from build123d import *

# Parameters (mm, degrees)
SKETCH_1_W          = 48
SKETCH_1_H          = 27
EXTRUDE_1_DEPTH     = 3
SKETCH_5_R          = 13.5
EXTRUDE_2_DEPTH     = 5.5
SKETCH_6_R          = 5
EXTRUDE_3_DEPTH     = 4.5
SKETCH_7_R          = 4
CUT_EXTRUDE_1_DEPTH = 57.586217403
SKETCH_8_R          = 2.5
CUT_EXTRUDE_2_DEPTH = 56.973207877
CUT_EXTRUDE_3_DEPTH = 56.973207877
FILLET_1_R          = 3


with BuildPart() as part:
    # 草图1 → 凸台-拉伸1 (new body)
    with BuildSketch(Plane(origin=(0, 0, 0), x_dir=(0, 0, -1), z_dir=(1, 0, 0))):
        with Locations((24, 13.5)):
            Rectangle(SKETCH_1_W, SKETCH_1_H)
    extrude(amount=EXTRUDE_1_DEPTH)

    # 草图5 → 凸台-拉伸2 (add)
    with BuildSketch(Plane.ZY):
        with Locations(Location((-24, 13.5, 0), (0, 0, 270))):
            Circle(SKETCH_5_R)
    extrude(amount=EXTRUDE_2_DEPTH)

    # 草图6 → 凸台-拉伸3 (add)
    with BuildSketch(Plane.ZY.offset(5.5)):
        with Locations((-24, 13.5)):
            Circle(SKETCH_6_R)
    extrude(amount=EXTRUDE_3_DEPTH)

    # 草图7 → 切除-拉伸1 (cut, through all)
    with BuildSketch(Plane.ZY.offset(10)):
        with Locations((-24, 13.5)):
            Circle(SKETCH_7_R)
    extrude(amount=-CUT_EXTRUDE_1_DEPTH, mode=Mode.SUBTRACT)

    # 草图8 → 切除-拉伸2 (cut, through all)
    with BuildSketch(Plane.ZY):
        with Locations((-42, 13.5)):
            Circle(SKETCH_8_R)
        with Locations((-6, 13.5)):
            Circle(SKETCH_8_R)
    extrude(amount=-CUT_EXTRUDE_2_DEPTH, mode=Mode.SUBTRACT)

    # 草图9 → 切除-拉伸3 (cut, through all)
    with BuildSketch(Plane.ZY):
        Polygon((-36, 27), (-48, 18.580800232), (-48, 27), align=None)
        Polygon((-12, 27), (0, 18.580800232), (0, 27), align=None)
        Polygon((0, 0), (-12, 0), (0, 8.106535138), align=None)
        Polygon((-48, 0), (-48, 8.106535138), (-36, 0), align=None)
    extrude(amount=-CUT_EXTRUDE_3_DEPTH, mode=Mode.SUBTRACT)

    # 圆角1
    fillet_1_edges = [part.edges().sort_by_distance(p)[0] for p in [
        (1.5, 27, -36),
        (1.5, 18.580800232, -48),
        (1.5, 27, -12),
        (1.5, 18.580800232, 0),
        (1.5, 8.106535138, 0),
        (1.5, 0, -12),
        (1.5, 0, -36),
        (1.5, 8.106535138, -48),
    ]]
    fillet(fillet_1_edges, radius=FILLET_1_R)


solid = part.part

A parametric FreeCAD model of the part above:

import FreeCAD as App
import Part
import Sketcher

V = App.Vector
Q = App.Units.Quantity


def edges_at(feature, points):
    """Names of the edges that pass closest to the given points."""
    edges = feature.Shape.Edges
    near = lambda p: min(range(len(edges)), key=lambda i: edges[i].distToShape(Part.Vertex(*p))[0])
    return sorted({f"Edge{near(p) + 1}" for p in points})


def add_polygon(sketch, points):
    """Adds a closed chain of lines whose ends are joined by coincident constraints."""
    first, n = sketch.GeometryCount, len(points)
    for a, b in zip(points, points[1:] + points[:1]):
        sketch.addGeometry(Part.LineSegment(App.Vector(*a, 0), App.Vector(*b, 0)), False)
    for i in range(n):
        sketch.addConstraint(Sketcher.Constraint("Coincident", first + i, 2, first + (i + 1) % n, 1))

doc = App.newDocument("Part")
params = doc.addObject("Spreadsheet::Sheet", "Params")
for row, (alias, value) in enumerate([
    ("sketch1_width", "27 mm"),
    ("sketch1_height", "48 mm"),
    ("pad1_length", "3 mm"),
    ("sketch2_diameter", "27 mm"),
    ("pad2_length", "5.5 mm"),
    ("sketch3_diameter", "10 mm"),
    ("pad3_length", "4.5 mm"),
    ("sketch4_diameter", "8 mm"),
    ("sketch5_diameter", "5 mm"),
    ("sketch6_height", "12 mm"),
    ("fillet_radius", "3 mm"),
], start=1):
    params.set(f"A{row}", alias)
    params.set(f"B{row}", "=" + value)
    params.setAlias(f"B{row}", alias)

body = doc.addObject("PartDesign::Body", "Body")

# Sketch on YZ plane
sketch1 = body.newObject("Sketcher::SketchObject", "Sketch")
sketch1.AttachmentSupport = (doc.getObject("YZ_Plane"), [""])
sketch1.MapMode = "FlatFace"
add_polygon(sketch1, [(27, 0), (0, 0), (0, -48), (27, -48)])  # lines 0-3
sketch1.addConstraint(Sketcher.Constraint("Horizontal", 0))
sketch1.addConstraint(Sketcher.Constraint("Vertical", 1))
sketch1.addConstraint(Sketcher.Constraint("Horizontal", 2))
sketch1.addConstraint(Sketcher.Constraint("Vertical", 3))
sketch1.addConstraint(Sketcher.Constraint("Coincident", 0, 2, -1, 1))
sketch1.addConstraint(Sketcher.Constraint("DistanceX", 0, 2, 0, 1, Q("27 mm")))
sketch1.addConstraint(Sketcher.Constraint("DistanceY", 1, 2, 1, 1, Q("48 mm")))
sketch1.setExpression("Constraints[9]", "Params.sketch1_width")
sketch1.setExpression("Constraints[10]", "Params.sketch1_height")
pad1 = body.newObject("PartDesign::Pad", "Pad")
pad1.Profile = sketch1
pad1.setExpression("Length", "Params.pad1_length")

# Sketch on YZ plane
sketch2 = body.newObject("Sketcher::SketchObject", "Sketch001")
sketch2.AttachmentSupport = (doc.getObject("YZ_Plane"), [""])
sketch2.MapMode = "FlatFace"
sketch2.addGeometry(Part.Circle(V(14, -24, 0), V(0, 0, 1), 14), False)
sketch2.addConstraint(Sketcher.Constraint("Diameter", 0, Q("27 mm")))
sketch2.addConstraint(Sketcher.Constraint("DistanceY", 0, 3, -1, 1, Q("24 mm")))
sketch2.addConstraint(Sketcher.Constraint("DistanceX", -1, 1, 0, 3, Q("13.5 mm")))
sketch2.setExpression("Constraints[0]", "Params.sketch2_diameter")
pad2 = body.newObject("PartDesign::Pad", "Pad001")
pad2.Profile = sketch2
pad2.setExpression("Length", "Params.pad2_length")
pad2.Reversed = True

# Sketch on YZ plane
sketch3 = body.newObject("Sketcher::SketchObject", "Sketch002")
sketch3.AttachmentSupport = (doc.getObject("YZ_Plane"), [""])
sketch3.MapMode = "FlatFace"
sketch3.AttachmentOffset = App.Placement(V(0, 0, -5.5), App.Rotation())
sketch3.addGeometry(Part.Circle(V(14, -24, 0), V(0, 0, 1), 5), False)
sketch3.addConstraint(Sketcher.Constraint("Diameter", 0, Q("10 mm")))
sketch3.addConstraint(Sketcher.Constraint("DistanceY", 0, 3, -1, 1, Q("24 mm")))
sketch3.addConstraint(Sketcher.Constraint("DistanceX", -1, 1, 0, 3, Q("13.5 mm")))
sketch3.setExpression("Constraints[0]", "Params.sketch3_diameter")
pad3 = body.newObject("PartDesign::Pad", "Pad002")
pad3.Profile = sketch3
pad3.setExpression("Length", "Params.pad3_length")
pad3.Reversed = True

# Sketch on YZ plane
sketch4 = body.newObject("Sketcher::SketchObject", "Sketch003")
sketch4.AttachmentSupport = (doc.getObject("YZ_Plane"), [""])
sketch4.MapMode = "FlatFace"
sketch4.AttachmentOffset = App.Placement(V(0, 0, -10), App.Rotation())
sketch4.addGeometry(Part.Circle(V(13.5, -24, 0), V(0, 0, 1), 4), False)
sketch4.addConstraint(Sketcher.Constraint("Diameter", 0, Q("8 mm")))
sketch4.addConstraint(Sketcher.Constraint("DistanceY", 0, 3, -1, 1, Q("24 mm")))
sketch4.addConstraint(Sketcher.Constraint("DistanceX", -1, 1, 0, 3, Q("13.5 mm")))
sketch4.setExpression("Constraints[0]", "Params.sketch4_diameter")
pocket1 = body.newObject("PartDesign::Pocket", "Pocket")
pocket1.Profile = sketch4
pocket1.Type = "ThroughAll"
pocket1.Reversed = True

# Sketch on YZ plane
sketch5 = body.newObject("Sketcher::SketchObject", "Sketch004")
sketch5.AttachmentSupport = (doc.getObject("YZ_Plane"), [""])
sketch5.MapMode = "FlatFace"
sketch5.addGeometry(Part.Circle(V(13.5, -42, 0), V(0, 0, 1), 2.5), False)
sketch5.addGeometry(Part.Circle(V(13.5, -6, 0), V(0, 0, 1), 2.5), False)
sketch5.addConstraint(Sketcher.Constraint("Equal", 0, 1))
sketch5.addConstraint(Sketcher.Constraint("Vertical", 0, 3, 1, 3))
sketch5.addConstraint(Sketcher.Constraint("Diameter", 0, Q("5 mm")))
sketch5.addConstraint(Sketcher.Constraint("DistanceY", 0, 3, -1, 1, Q("42 mm")))
sketch5.addConstraint(Sketcher.Constraint("DistanceY", 1, 3, -1, 1, Q("6 mm")))
sketch5.addConstraint(Sketcher.Constraint("DistanceX", -1, 1, 0, 3, Q("13.5 mm")))
sketch5.setExpression("Constraints[2]", "Params.sketch5_diameter")
pocket2 = body.newObject("PartDesign::Pocket", "Pocket001")
pocket2.Profile = sketch5
pocket2.Type = "ThroughAll"
pocket2.Reversed = True

# Sketch on YZ plane
sketch6 = body.newObject("Sketcher::SketchObject", "Sketch005")
sketch6.AttachmentSupport = (doc.getObject("YZ_Plane"), [""])
sketch6.MapMode = "FlatFace"
add_polygon(sketch6, [(19, -48), (27, -36), (27, -48)])  # lines 0-2
add_polygon(sketch6, [(27, -12), (19, 0), (27, 0)])  # lines 3-5
add_polygon(sketch6, [(0, -12), (0, 0), (8, 0)])  # lines 6-8
add_polygon(sketch6, [(8, -48), (0, -48), (0, -36)])  # lines 9-11
sketch6.addConstraint(Sketcher.Constraint("Vertical", 1))
sketch6.addConstraint(Sketcher.Constraint("Horizontal", 2))
sketch6.addConstraint(Sketcher.Constraint("Horizontal", 4))
sketch6.addConstraint(Sketcher.Constraint("Vertical", 5))
sketch6.addConstraint(Sketcher.Constraint("Vertical", 6))
sketch6.addConstraint(Sketcher.Constraint("Horizontal", 7))
sketch6.addConstraint(Sketcher.Constraint("Horizontal", 9))
sketch6.addConstraint(Sketcher.Constraint("Vertical", 10))
sketch6.addConstraint(Sketcher.Constraint("Coincident", 6, 2, -1, 1))
sketch6.addConstraint(Sketcher.Constraint("PointOnObject", 3, 2, -1))
sketch6.addConstraint(Sketcher.Constraint("PointOnObject", 9, 2, -2))
sketch6.addConstraint(Sketcher.Constraint("Horizontal", 5, 2, 8, 2))
sketch6.addConstraint(Sketcher.Constraint("Horizontal", 2, 2, 9, 2))
sketch6.addConstraint(Sketcher.Constraint("Horizontal", 0, 2, 10, 2))
sketch6.addConstraint(Sketcher.Constraint("Vertical", 2, 2, 3, 2))
sketch6.addConstraint(Sketcher.Constraint("Vertical", 1, 2, 4, 2))
sketch6.addConstraint(Sketcher.Constraint("Vertical", 7, 2, 11, 2))
sketch6.addConstraint(Sketcher.Constraint("Equal", 1, 5))
sketch6.addConstraint(Sketcher.Constraint("DistanceY", 1, 2, 1, 1, Q("12 mm")))
sketch6.addConstraint(Sketcher.Constraint("DistanceX", -1, 1, 0, 2, Q("27 mm")))
sketch6.addConstraint(Sketcher.Constraint("DistanceY", 0, 2, -1, 1, Q("36 mm")))
sketch6.addConstraint(Sketcher.Constraint("DistanceX", 2, 2, 2, 1, Q("8.4192 mm")))
sketch6.addConstraint(Sketcher.Constraint("Distance", 8, Q("14.481571 mm")))
sketch6.setExpression("Constraints[30]", "Params.sketch6_height")
pocket3 = body.newObject("PartDesign::Pocket", "Pocket002")
pocket3.Profile = sketch6
pocket3.Type = "ThroughAll"
pocket3.Reversed = True
doc.recompute()

fillet = body.newObject("PartDesign::Fillet", "Fillet")
fillet.Base = (pocket3, edges_at(pocket3, [
    (1.5, 27, -36),
    (1.5, 18.581, -48),
    (1.5, 27, -12),
    (1.5, 18.581, 0),
    (1.5, 8.107, 0),
    (1.5, 0, -12),
    (1.5, 0, -36),
    (1.5, 8.107, -48),
]))
fillet.setExpression("Radius", "Params.fillet_radius")

doc.recompute()
